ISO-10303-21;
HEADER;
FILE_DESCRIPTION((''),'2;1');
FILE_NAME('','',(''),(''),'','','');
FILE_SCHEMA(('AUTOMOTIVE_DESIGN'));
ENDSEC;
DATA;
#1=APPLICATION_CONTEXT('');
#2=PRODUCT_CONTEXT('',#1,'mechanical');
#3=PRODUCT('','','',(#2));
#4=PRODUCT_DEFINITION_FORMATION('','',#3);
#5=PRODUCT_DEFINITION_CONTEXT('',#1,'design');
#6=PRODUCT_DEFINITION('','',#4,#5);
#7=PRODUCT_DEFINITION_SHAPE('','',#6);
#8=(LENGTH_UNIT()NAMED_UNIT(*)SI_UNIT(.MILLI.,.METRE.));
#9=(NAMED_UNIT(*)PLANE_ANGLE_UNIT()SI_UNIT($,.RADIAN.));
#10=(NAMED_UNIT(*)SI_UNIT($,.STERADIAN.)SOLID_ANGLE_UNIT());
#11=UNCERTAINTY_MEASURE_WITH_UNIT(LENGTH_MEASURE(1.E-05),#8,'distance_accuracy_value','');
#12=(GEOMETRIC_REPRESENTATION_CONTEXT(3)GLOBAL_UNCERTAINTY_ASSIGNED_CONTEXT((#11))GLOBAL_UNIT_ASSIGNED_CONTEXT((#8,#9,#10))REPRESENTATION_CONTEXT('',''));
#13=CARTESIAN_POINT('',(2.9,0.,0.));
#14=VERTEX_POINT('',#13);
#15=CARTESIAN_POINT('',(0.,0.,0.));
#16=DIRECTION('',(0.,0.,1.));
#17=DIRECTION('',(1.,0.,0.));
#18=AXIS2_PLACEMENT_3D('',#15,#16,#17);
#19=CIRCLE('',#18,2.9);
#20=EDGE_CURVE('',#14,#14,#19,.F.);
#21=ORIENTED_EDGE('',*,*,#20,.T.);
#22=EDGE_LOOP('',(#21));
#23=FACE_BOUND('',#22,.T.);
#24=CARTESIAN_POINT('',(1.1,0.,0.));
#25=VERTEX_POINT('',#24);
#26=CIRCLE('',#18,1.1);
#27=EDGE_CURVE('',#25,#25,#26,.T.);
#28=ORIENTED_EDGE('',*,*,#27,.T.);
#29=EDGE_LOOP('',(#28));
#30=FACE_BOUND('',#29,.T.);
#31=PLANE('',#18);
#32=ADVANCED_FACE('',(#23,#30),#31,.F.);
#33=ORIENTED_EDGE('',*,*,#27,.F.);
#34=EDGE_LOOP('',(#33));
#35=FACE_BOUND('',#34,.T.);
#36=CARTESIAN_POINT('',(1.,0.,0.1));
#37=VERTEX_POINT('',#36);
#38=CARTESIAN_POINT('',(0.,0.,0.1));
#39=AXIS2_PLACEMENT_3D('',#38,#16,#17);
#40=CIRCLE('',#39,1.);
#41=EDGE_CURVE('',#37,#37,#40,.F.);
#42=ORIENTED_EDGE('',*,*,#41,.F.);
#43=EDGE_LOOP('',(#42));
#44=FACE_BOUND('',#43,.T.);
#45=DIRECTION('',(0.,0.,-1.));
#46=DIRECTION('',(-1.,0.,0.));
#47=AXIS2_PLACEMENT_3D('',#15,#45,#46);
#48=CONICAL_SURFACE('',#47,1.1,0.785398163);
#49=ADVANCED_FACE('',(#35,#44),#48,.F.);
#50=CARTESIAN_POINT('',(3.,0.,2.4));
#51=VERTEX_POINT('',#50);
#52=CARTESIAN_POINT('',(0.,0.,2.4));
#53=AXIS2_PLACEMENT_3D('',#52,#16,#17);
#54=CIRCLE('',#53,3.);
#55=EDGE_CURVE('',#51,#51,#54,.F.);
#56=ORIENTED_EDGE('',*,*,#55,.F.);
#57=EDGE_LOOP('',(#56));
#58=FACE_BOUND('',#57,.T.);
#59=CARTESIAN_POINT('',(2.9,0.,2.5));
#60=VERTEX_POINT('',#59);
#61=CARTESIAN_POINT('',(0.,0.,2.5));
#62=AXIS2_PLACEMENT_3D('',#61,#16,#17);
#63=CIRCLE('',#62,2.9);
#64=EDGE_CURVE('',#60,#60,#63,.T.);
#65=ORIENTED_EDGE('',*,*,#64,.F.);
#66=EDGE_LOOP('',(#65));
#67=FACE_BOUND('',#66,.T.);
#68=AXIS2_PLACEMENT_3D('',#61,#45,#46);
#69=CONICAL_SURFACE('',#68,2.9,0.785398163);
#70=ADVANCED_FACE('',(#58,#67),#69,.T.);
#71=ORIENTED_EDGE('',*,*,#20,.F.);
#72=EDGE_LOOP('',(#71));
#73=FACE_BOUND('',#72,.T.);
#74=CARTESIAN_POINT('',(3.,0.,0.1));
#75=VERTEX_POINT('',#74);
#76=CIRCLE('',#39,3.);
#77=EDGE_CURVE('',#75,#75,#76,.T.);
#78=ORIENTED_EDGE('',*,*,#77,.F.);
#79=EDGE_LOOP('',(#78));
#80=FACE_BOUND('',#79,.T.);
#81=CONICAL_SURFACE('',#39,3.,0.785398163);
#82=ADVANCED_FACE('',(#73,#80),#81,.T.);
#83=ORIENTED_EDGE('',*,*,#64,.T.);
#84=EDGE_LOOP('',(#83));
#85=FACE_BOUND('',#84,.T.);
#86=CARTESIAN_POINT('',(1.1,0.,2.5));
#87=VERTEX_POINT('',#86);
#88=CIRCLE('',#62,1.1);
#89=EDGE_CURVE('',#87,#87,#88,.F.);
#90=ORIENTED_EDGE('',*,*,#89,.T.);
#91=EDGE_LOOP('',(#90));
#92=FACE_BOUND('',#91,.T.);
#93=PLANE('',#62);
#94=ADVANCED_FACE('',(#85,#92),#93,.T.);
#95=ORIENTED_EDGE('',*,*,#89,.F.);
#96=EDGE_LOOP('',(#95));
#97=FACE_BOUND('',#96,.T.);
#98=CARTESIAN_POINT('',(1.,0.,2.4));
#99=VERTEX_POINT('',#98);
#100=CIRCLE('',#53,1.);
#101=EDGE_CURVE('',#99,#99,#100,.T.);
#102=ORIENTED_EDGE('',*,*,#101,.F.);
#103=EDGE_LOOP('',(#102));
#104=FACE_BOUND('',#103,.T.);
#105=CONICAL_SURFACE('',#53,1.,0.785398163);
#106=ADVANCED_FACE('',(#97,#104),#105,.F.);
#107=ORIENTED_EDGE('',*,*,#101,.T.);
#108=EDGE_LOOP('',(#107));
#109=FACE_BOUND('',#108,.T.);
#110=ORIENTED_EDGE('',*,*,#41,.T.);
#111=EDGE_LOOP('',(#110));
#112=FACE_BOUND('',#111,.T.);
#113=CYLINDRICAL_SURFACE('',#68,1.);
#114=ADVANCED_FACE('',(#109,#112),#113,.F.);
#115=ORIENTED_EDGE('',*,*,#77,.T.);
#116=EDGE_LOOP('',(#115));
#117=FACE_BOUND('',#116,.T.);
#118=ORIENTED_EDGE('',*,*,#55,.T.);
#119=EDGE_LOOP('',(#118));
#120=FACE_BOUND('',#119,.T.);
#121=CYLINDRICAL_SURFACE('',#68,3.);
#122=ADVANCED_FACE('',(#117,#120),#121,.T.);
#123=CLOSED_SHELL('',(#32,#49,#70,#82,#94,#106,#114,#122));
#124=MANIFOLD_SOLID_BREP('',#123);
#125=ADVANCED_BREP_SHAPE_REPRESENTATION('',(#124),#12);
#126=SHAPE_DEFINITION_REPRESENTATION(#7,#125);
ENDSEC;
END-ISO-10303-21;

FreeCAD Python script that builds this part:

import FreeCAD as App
import Part
import Sketcher

V = App.Vector


def edges_at(feature, points):
    """Names of the edges that pass closest to the given points."""
    edges = feature.Shape.Edges
    near = lambda p: min(range(len(edges)), key=lambda i: edges[i].distToShape(Part.Vertex(*p))[0])
    return sorted({f"Edge{near(p) + 1}" for p in points})

doc = App.newDocument("Part")
body = doc.addObject("PartDesign::Body", "Body")

sketch1 = doc.addObject("Sketcher::SketchObject", "Sketch")
body.addObject(sketch1)
sketch1.AttachmentSupport = (doc.XY_Plane, [""])
sketch1.MapMode = "FlatFace"
sketch1.addGeometry([
    Part.Circle(V(0, 0, 0), V(0, 0, 1), 3),
    Part.Circle(V(0, 0, 0), V(0, 0, 1), 1),
], False)
sketch1.addConstraint([
    Sketcher.Constraint("Coincident", 0, 3, -1, 1),
    Sketcher.Constraint("Coincident", 1, 3, -1, 1),
    Sketcher.Constraint("Diameter", 0, 6.0),
    Sketcher.Constraint("Diameter", 1, 2.0),
])
pad1 = doc.addObject("PartDesign::Pad", "Pad")
body.addObject(pad1)
pad1.Profile = sketch1
pad1.Length = 2.5
doc.recompute()

chamfer = doc.addObject("PartDesign::Chamfer", "Chamfer")
body.addObject(chamfer)
chamfer.Base = (pad1, edges_at(pad1, [
    (-3, 0, 0),
    (-3, 0, 2.5),
    (-1, 0, 0),
    (-1, 0, 2.5),
]))
chamfer.Size = 0.1

doc.recompute()
